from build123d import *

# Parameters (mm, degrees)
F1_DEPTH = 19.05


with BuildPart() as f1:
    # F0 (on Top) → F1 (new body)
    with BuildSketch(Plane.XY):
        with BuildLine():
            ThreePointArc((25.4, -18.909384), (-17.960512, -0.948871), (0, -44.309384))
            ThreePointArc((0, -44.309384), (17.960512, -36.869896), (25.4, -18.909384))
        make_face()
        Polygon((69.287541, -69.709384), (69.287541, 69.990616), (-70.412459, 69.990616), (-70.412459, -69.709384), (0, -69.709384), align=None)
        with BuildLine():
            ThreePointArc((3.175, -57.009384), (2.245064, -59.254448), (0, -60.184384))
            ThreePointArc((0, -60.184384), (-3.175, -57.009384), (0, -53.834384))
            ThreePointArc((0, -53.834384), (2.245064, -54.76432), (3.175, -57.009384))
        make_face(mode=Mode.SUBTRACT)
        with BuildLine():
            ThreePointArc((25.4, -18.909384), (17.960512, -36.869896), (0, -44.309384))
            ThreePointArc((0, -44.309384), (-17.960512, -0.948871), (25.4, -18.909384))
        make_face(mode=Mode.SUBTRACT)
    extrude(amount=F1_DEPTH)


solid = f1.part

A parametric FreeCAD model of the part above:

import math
import FreeCAD as App
import Part
import Sketcher
from FreeCAD import Vector
Q = App.Units.Quantity

doc = App.newDocument("Part")
body = doc.addObject("PartDesign::Body", "Body")

sketch1 = body.newObject("Sketcher::SketchObject", "Sketch")
sketch1.AttachmentSupport = (doc.getObject("XY_Plane"), [""])
sketch1.MapMode = "FlatFace"
sketch1.addGeometry([
    Part.LineSegment(Vector(69.3, -69.7, 0), Vector(69.3, 70, 0)),
    Part.LineSegment(Vector(69.3, 70, 0), Vector(-70.4, 70, 0)),
    Part.LineSegment(Vector(-70.4, 70, 0), Vector(-70.4, -69.7, 0)),
    Part.LineSegment(Vector(-70.4, -69.7, 0), Vector(69.3, -69.7, 0)),
    Part.ArcOfCircle(Part.Circle(Vector(0, -57, 0), Vector(0, 0, 1), 3.2), math.radians(0), math.radians(90)),
    Part.ArcOfCircle(Part.Circle(Vector(0, -57, 0), Vector(0, 0, 1), 3.2), math.radians(-90), math.radians(0)),
    Part.ArcOfCircle(Part.Circle(Vector(0, -57, 0), Vector(0, 0, 1), 3.2), math.radians(90), math.radians(270)),
    Part.ArcOfCircle(Part.Circle(Vector(0, -18.9, 0), Vector(0, 0, 1), 25.4), math.radians(0), math.radians(270)),
    Part.ArcOfCircle(Part.Circle(Vector(0, -18.9, 0), Vector(0, 0, 1), 25.4), math.radians(-90), math.radians(0)),
], False)
sketch1.addConstraint([
    Sketcher.Constraint("Coincident", 0, 2, 1, 1),
    Sketcher.Constraint("Coincident", 1, 2, 2, 1),
    Sketcher.Constraint("Coincident", 2, 2, 3, 1),
    Sketcher.Constraint("Coincident", 3, 2, 0, 1),
    Sketcher.Constraint("Tangent", 4, 1, 5, 2),
    Sketcher.Constraint("Tangent", 5, 1, 6, 2),
    Sketcher.Constraint("Tangent", 6, 1, 4, 2),
    Sketcher.Constraint("Tangent", 7, 1, 8, 2),
    Sketcher.Constraint("Coincident", 8, 1, 7, 2),
    Sketcher.Constraint("Vertical", 0),
    Sketcher.Constraint("Horizontal", 1),
    Sketcher.Constraint("Vertical", 2),
    Sketcher.Constraint("Horizontal", 3),
    Sketcher.Constraint("PointOnObject", 4, 3, -2),
    Sketcher.Constraint("PointOnObject", 7, 3, -2),
    Sketcher.Constraint("PointOnObject", 5, 1, -2),
    Sketcher.Constraint("PointOnObject", 6, 1, -2),
    Sketcher.Constraint("PointOnObject", 8, 1, -2),
    Sketcher.Constraint("Horizontal", 6, 3, 4, 1),
    Sketcher.Constraint("Horizontal", 8, 3, 7, 1),
    Sketcher.Constraint("Equal", 3, 0),
    Sketcher.Constraint("Radius", 7, Q("1 in")),
    Sketcher.Constraint("DistanceX", 1, 2, 1, 1, Q("5.5 in")),
    Sketcher.Constraint("Radius", 4, Q("0.125 in")),
    Sketcher.Constraint("DistanceY", 5, 3, 0, 2, Q("5 in")),
    Sketcher.Constraint("DistanceY", 2, 2, 8, 3, Q("2 in")),
    Sketcher.Constraint("DistanceX", -1, 1, 0, 2, Q("69.287541 mm")),
    Sketcher.Constraint("DistanceY", 4, 3, -1, 1, Q("57.009384 mm")),
])
pad1 = body.newObject("PartDesign::Pad", "Pad")
pad1.Profile = sketch1
pad1.Length = Q("0.75 in")

doc.recompute()
